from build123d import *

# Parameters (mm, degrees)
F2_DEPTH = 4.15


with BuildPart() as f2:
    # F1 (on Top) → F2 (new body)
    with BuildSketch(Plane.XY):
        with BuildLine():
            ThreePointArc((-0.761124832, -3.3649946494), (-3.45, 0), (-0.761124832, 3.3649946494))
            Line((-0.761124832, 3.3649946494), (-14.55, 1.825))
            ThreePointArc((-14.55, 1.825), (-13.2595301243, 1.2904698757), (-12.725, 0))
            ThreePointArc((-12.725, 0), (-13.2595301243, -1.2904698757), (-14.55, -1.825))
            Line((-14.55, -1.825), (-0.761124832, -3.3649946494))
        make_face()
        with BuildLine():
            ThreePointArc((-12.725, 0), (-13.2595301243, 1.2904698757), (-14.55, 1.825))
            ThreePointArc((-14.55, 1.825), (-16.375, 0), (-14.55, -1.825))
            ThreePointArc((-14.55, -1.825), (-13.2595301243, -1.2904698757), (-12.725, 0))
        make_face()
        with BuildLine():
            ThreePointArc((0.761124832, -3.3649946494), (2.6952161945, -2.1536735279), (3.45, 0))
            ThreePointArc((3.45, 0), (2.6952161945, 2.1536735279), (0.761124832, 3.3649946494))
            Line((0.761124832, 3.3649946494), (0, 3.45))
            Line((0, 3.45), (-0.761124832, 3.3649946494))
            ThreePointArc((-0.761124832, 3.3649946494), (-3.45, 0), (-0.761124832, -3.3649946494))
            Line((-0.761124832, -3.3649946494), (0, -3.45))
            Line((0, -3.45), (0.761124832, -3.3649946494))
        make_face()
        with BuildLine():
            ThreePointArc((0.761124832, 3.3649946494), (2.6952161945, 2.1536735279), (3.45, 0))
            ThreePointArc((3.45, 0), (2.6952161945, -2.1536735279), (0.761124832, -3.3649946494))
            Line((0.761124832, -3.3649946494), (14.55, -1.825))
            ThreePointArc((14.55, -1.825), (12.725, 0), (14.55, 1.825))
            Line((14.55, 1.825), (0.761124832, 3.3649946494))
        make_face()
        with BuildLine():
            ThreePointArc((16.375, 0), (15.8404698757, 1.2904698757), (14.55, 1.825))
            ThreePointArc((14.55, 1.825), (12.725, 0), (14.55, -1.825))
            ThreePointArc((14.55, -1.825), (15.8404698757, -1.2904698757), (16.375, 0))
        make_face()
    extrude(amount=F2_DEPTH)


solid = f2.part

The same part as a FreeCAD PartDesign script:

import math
import FreeCAD as App
import Part
import Sketcher
Q = App.Units.Quantity

doc = App.newDocument("Part")
params = doc.addObject("Spreadsheet::Sheet", "Params")
for row, (alias, value) in enumerate([
    ("pad1_length", "4.15 mm"),
], start=1):
    params.set(f"A{row}", alias)
    params.set(f"B{row}", "=" + value)
    params.setAlias(f"B{row}", alias)

body = doc.addObject("PartDesign::Body", "Body")

sketch1 = doc.addObject("Sketcher::SketchObject", "Sketch")
body.addObject(sketch1)
sketch1.AttachmentSupport = (doc.XY_Plane, [""])
sketch1.MapMode = "FlatFace"
sketch1.addGeometry(Part.LineSegment(App.Vector(-0.8, 3.4, 0), App.Vector(-14.6, 1.8, 0)), False)
sketch1.addGeometry(Part.ArcOfCircle(Part.Circle(App.Vector(-14.6, 0, 0), App.Vector(0, 0, 1), 1.8), math.radians(90), math.radians(270)), False)
sketch1.addGeometry(Part.LineSegment(App.Vector(-14.6, -1.8, 0), App.Vector(-0.8, -3.4, 0)), False)
sketch1.addGeometry(Part.LineSegment(App.Vector(-0.8, -3.4, 0), App.Vector(0, -3.5, 0)), False)
sketch1.addGeometry(Part.LineSegment(App.Vector(0, -3.5, 0), App.Vector(0.8, -3.4, 0)), False)
sketch1.addGeometry(Part.LineSegment(App.Vector(0.8, -3.4, 0), App.Vector(14.6, -1.8, 0)), False)
sketch1.addGeometry(Part.ArcOfCircle(Part.Circle(App.Vector(14.6, 0, 0), App.Vector(0, 0, 1), 1.8), math.radians(-90), math.radians(0)), False)
sketch1.addGeometry(Part.ArcOfCircle(Part.Circle(App.Vector(14.6, 0, 0), App.Vector(0, 0, 1), 1.8), math.radians(0), math.radians(90)), False)
sketch1.addGeometry(Part.LineSegment(App.Vector(14.6, 1.8, 0), App.Vector(0.8, 3.4, 0)), False)
sketch1.addGeometry(Part.LineSegment(App.Vector(0.8, 3.4, 0), App.Vector(0, 3.5, 0)), False)
sketch1.addGeometry(Part.LineSegment(App.Vector(0, 3.5, 0), App.Vector(-0.8, 3.4, 0)), False)
sketch1.addConstraint(Sketcher.Constraint("Coincident", 0, 2, 1, 1))
sketch1.addConstraint(Sketcher.Constraint("Coincident", 1, 2, 2, 1))
sketch1.addConstraint(Sketcher.Constraint("Coincident", 2, 2, 3, 1))
sketch1.addConstraint(Sketcher.Constraint("Coincident", 3, 2, 4, 1))
sketch1.addConstraint(Sketcher.Constraint("Coincident", 4, 2, 5, 1))
sketch1.addConstraint(Sketcher.Constraint("Coincident", 5, 2, 6, 1))
sketch1.addConstraint(Sketcher.Constraint("Tangent", 6, 2, 7, 1))
sketch1.addConstraint(Sketcher.Constraint("Coincident", 7, 2, 8, 1))
sketch1.addConstraint(Sketcher.Constraint("Coincident", 8, 2, 9, 1))
sketch1.addConstraint(Sketcher.Constraint("Coincident", 9, 2, 10, 1))
sketch1.addConstraint(Sketcher.Constraint("Coincident", 10, 2, 0, 1))
sketch1.addConstraint(Sketcher.Constraint("Equal", 1, 6))
sketch1.addConstraint(Sketcher.Constraint("Equal", 6, 7))
sketch1.addConstraint(Sketcher.Constraint("Symmetric", 1, 3, 6, 3, -1, 1))
sketch1.addConstraint(Sketcher.Constraint("Symmetric", 2, 2, 8, 2, -1, 1))
sketch1.addConstraint(Sketcher.Constraint("Symmetric", 3, 2, 9, 2, -1, 1))
sketch1.addConstraint(Sketcher.Constraint("Symmetric", 4, 2, 10, 2, -1, 1))
sketch1.addConstraint(Sketcher.Constraint("Symmetric", 2, 2, 4, 2, -2))
sketch1.addConstraint(Sketcher.Constraint("Symmetric", 1, 2, 5, 2, -2))
sketch1.addConstraint(Sketcher.Constraint("PointOnObject", 3, 2, -2))
sketch1.addConstraint(Sketcher.Constraint("PointOnObject", 6, 2, -1))
sketch1.addConstraint(Sketcher.Constraint("Parallel", 2, 3))
sketch1.addConstraint(Sketcher.Constraint("Parallel", 0, 4))
sketch1.addConstraint(Sketcher.Constraint("Parallel", 3, 8))
sketch1.addConstraint(Sketcher.Constraint("Vertical", 1, 3, 0, 2))
sketch1.addConstraint(Sketcher.Constraint("Radius", 1, Q("1.825 mm")))
sketch1.addConstraint(Sketcher.Constraint("DistanceX", 1, 3, 6, 3, Q("29.1 mm")))
sketch1.addConstraint(Sketcher.Constraint("DistanceY", 3, 2, 9, 2, Q("6.9 mm")))
sketch1.addConstraint(Sketcher.Constraint("DistanceX", 2, 2, 4, 2, Q("1.52225 mm")))
pad1 = doc.addObject("PartDesign::Pad", "Pad")
body.addObject(pad1)
pad1.Profile = sketch1
pad1.setExpression("Length", "Params.pad1_length")

doc.recompute()
